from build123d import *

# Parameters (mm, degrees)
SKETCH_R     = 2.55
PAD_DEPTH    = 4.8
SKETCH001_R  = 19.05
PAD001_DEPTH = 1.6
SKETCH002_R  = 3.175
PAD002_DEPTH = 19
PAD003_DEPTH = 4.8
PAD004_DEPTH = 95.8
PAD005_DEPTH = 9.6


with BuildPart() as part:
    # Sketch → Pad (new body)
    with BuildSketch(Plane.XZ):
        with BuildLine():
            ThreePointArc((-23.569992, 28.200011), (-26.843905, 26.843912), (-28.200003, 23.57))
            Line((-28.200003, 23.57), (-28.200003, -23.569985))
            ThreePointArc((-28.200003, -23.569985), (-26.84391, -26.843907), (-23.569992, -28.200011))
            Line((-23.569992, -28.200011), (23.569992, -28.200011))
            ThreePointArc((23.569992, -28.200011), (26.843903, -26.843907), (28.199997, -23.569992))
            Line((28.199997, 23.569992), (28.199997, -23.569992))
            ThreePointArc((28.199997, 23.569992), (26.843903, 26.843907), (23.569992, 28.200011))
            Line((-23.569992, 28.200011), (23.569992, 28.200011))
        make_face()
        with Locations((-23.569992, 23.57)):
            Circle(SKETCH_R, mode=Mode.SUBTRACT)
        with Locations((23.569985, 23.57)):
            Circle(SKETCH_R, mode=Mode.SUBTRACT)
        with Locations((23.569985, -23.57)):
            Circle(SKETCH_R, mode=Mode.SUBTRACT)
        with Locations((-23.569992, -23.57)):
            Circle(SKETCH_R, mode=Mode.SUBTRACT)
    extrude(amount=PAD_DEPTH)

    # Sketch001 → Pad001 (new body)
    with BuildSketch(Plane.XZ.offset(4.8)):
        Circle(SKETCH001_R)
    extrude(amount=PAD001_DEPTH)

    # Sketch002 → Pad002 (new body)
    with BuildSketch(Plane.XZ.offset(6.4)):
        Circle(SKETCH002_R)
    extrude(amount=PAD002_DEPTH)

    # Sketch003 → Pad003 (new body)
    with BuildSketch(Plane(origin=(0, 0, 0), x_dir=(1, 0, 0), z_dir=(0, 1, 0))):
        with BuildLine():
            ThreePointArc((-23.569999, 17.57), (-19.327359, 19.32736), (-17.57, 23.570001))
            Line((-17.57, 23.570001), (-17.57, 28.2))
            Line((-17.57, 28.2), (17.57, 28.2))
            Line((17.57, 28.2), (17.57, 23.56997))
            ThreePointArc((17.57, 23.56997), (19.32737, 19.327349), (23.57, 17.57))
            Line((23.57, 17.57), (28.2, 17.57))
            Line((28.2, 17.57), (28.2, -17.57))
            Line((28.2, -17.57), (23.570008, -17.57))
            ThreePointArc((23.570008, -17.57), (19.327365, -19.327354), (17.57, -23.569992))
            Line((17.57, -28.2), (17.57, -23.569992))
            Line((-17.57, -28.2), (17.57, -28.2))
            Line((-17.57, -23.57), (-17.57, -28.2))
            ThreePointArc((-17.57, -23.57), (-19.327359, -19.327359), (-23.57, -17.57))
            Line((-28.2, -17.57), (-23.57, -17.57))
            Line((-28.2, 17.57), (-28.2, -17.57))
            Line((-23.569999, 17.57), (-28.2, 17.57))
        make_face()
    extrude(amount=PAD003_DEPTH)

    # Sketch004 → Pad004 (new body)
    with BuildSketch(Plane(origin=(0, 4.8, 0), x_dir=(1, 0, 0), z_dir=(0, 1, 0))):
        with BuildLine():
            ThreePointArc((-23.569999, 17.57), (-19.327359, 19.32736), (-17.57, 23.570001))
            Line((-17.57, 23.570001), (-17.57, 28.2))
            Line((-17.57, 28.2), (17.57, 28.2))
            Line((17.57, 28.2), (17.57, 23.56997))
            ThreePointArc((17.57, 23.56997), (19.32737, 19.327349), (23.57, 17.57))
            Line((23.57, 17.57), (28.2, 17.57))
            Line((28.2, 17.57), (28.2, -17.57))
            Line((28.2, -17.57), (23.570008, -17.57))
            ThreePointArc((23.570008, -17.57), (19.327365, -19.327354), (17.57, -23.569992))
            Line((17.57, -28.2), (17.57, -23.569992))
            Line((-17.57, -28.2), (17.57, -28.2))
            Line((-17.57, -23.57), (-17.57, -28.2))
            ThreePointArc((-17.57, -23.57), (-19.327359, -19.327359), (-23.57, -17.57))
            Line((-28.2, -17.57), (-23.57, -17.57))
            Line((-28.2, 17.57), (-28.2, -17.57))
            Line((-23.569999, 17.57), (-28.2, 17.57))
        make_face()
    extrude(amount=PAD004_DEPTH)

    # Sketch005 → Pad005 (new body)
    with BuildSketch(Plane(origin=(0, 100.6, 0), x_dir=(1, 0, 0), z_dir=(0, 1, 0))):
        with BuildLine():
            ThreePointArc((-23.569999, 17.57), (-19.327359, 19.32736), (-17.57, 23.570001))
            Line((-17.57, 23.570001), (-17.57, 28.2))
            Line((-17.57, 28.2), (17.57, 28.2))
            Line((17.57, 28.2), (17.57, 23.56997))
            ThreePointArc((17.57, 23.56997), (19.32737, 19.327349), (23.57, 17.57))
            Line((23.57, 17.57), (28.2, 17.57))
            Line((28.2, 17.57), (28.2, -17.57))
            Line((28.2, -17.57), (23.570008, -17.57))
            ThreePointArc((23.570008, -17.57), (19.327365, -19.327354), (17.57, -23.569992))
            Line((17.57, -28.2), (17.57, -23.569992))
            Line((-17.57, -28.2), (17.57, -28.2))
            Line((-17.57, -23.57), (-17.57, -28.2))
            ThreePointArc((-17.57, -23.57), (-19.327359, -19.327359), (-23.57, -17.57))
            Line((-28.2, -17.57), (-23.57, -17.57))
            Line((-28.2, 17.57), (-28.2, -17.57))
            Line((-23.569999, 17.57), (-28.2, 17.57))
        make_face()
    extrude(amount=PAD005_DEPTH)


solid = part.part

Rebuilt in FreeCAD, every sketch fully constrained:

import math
import FreeCAD as App
import Part
import Sketcher

V = App.Vector

doc = App.newDocument("Part")
params = doc.addObject("Spreadsheet::Sheet", "Params")
for row, (alias, value) in enumerate([
    ("sketch1_diameter", "5.1 mm"),
    ("pad1_length", "4.8 mm"),
    ("sketch2_diameter", "38.1 mm"),
    ("pad2_length", "1.6 mm"),
    ("sketch3_diameter", "6.35 mm"),
    ("pad3_length", "19 mm"),
    ("sketch4_radius", "6.000001 mm"),
    ("sketch4_width", "4.630001 mm"),
    ("sketch4_width2", "35.14 mm"),
    ("pad4_length", "4.8 mm"),
    ("sketch5_radius", "6.000001 mm"),
    ("sketch5_width", "4.630001 mm"),
    ("sketch5_width2", "35.14 mm"),
    ("pad5_length", "95.8 mm"),
    ("sketch6_radius", "6.000001 mm"),
    ("sketch6_width", "4.630001 mm"),
    ("sketch6_width2", "35.14 mm"),
    ("pad6_length", "9.6 mm"),
], start=1):
    params.set(f"A{row}", alias)
    params.set(f"B{row}", "=" + value)
    params.setAlias(f"B{row}", alias)

body = doc.addObject("PartDesign::Body", "Body")

sketch1 = body.newObject("Sketcher::SketchObject", "Sketch")
sketch1.AttachmentSupport = (doc.getObject("XZ_Plane"), [""])
sketch1.MapMode = "FlatFace"
sketch1.addGeometry([
    Part.ArcOfCircle(Part.Circle(V(-23.6, 23.6, 0), V(0, 0, 1), 4.6), math.radians(90), math.radians(180)),
    Part.LineSegment(V(-28.2, 23.6, 0), V(-28.2, -23.6, 0)),
    Part.ArcOfCircle(Part.Circle(V(-23.6, -23.6, 0), V(0, 0, 1), 4.6), math.radians(180), math.radians(270)),
    Part.LineSegment(V(-23.6, -28.2, 0), V(23.6, -28.2, 0)),
    Part.ArcOfCircle(Part.Circle(V(23.6, -23.6, 0), V(0, 0, 1), 4.6), math.radians(-90), math.radians(0)),
    Part.LineSegment(V(28.2, -23.6, 0), V(28.2, 23.6, 0)),
    Part.ArcOfCircle(Part.Circle(V(23.6, 23.6, 0), V(0, 0, 1), 4.6), math.radians(0), math.radians(90)),
    Part.LineSegment(V(23.6, 28.2, 0), V(-23.6, 28.2, 0)),
    Part.Circle(V(-23.6, -23.6, 0), V(0, 0, 1), 2.5),
    Part.Circle(V(23.6, -23.6, 0), V(0, 0, 1), 2.5),
    Part.Circle(V(-23.6, 23.6, 0), V(0, 0, 1), 2.5),
    Part.Circle(V(23.6, 23.6, 0), V(0, 0, 1), 2.5),
], False)
sketch1.addConstraint([
    Sketcher.Constraint("Tangent", 0, 2, 1, 1),
    Sketcher.Constraint("Coincident", 1, 2, 2, 1),
    Sketcher.Constraint("Tangent", 2, 2, 3, 1),
    Sketcher.Constraint("Tangent", 3, 2, 4, 1),
    Sketcher.Constraint("Tangent", 4, 2, 5, 1),
    Sketcher.Constraint("Tangent", 5, 2, 6, 1),
    Sketcher.Constraint("Tangent", 6, 2, 7, 1),
    Sketcher.Constraint("Tangent", 7, 2, 0, 1),
    Sketcher.Constraint("Vertical", 1),
    Sketcher.Constraint("Horizontal", 3),
    Sketcher.Constraint("Vertical", 5),
    Sketcher.Constraint("Horizontal", 7),
    Sketcher.Constraint("Coincident", 8, 3, 2, 3),
    Sketcher.Constraint("Coincident", 9, 3, 4, 3),
    Sketcher.Constraint("Coincident", 10, 3, 0, 3),
    Sketcher.Constraint("Coincident", 11, 3, 6, 3),
    Sketcher.Constraint("Equal", 0, 2),
    Sketcher.Constraint("Equal", 2, 4),
    Sketcher.Constraint("Equal", 4, 6),
    Sketcher.Constraint("Equal", 8, 9),
    Sketcher.Constraint("Equal", 9, 10),
    Sketcher.Constraint("Equal", 10, 11),
    Sketcher.Constraint("Symmetric", 0, 3, 4, 3, -1, 1),
    Sketcher.Constraint("Equal", 7, 1),
    Sketcher.Constraint("Equal", 1, 5),
    Sketcher.Constraint("Diameter", 8, 5.1),
    Sketcher.Constraint("DistanceY", -1, 1, 0, 3, 23.570001),
    Sketcher.Constraint("Radius", 0, 4.63001),
])
sketch1.setExpression("Constraints[25]", "Params.sketch1_diameter")
pad1 = body.newObject("PartDesign::Pad", "Pad")
pad1.Profile = sketch1
pad1.setExpression("Length", "Params.pad1_length")

sketch2 = body.newObject("Sketcher::SketchObject", "Sketch001")
sketch2.AttachmentSupport = (doc.getObject("XZ_Plane"), [""])
sketch2.MapMode = "FlatFace"
sketch2.AttachmentOffset = App.Placement(V(0, 0, 4.8), App.Rotation())
sketch2.addGeometry(Part.Circle(V(0, 0, 0), V(0, 0, 1), 19), False)
sketch2.addConstraint([
    Sketcher.Constraint("Coincident", 0, 3, -1, 1),
    Sketcher.Constraint("Diameter", 0, 38.1),
])
sketch2.setExpression("Constraints[1]", "Params.sketch2_diameter")
pad2 = body.newObject("PartDesign::Pad", "Pad001")
pad2.Profile = sketch2
pad2.setExpression("Length", "Params.pad2_length")

sketch3 = body.newObject("Sketcher::SketchObject", "Sketch002")
sketch3.AttachmentSupport = (doc.getObject("XZ_Plane"), [""])
sketch3.MapMode = "FlatFace"
sketch3.AttachmentOffset = App.Placement(V(0, 0, 6.4), App.Rotation())
sketch3.addGeometry(Part.Circle(V(0, 0, 0), V(0, 0, 1), 3.2), False)
sketch3.addConstraint([
    Sketcher.Constraint("Coincident", 0, 3, -1, 1),
    Sketcher.Constraint("Diameter", 0, 6.35),
])
sketch3.setExpression("Constraints[1]", "Params.sketch3_diameter")
pad3 = body.newObject("PartDesign::Pad", "Pad002")
pad3.Profile = sketch3
pad3.setExpression("Length", "Params.pad3_length")

sketch4 = body.newObject("Sketcher::SketchObject", "Sketch003")
sketch4.AttachmentSupport = (doc.getObject("XZ_Plane"), [""])
sketch4.MapMode = "FlatFace"
sketch4.addGeometry([
    Part.ArcOfCircle(Part.Circle(V(-23.6, -23.6, 0), V(0, 0, 1), 6), math.radians(0), math.radians(90)),
    Part.LineSegment(V(-23.6, -17.6, 0), V(-28.2, -17.6, 0)),
    Part.LineSegment(V(-28.2, -17.6, 0), V(-28.2, 17.6, 0)),
    Part.LineSegment(V(-28.2, 17.6, 0), V(-23.6, 17.6, 0)),
    Part.ArcOfCircle(Part.Circle(V(-23.6, 23.6, 0), V(0, 0, 1), 6), math.radians(-90), math.radians(0)),
    Part.LineSegment(V(-17.6, 23.6, 0), V(-17.6, 28.2, 0)),
    Part.LineSegment(V(-17.6, 28.2, 0), V(17.6, 28.2, 0)),
    Part.LineSegment(V(17.6, 28.2, 0), V(17.6, 23.6, 0)),
    Part.ArcOfCircle(Part.Circle(V(23.6, 23.6, 0), V(0, 0, 1), 6), math.radians(-180), math.radians(-90)),
    Part.LineSegment(V(23.6, 17.6, 0), V(28.2, 17.6, 0)),
    Part.LineSegment(V(28.2, 17.6, 0), V(28.2, -17.6, 0)),
    Part.LineSegment(V(28.2, -17.6, 0), V(23.6, -17.6, 0)),
    Part.ArcOfCircle(Part.Circle(V(23.6, -23.6, 0), V(0, 0, 1), 6), math.radians(90), math.radians(180)),
    Part.LineSegment(V(17.6, -23.6, 0), V(17.6, -28.2, 0)),
    Part.LineSegment(V(17.6, -28.2, 0), V(-17.6, -28.2, 0)),
    Part.LineSegment(V(-17.6, -28.2, 0), V(-17.6, -23.6, 0)),
], False)
sketch4.addConstraint([
    Sketcher.Constraint("Tangent", 0, 2, 1, 1),
    Sketcher.Constraint("Coincident", 1, 2, 2, 1),
    Sketcher.Constraint("Coincident", 2, 2, 3, 1),
    Sketcher.Constraint("Tangent", 3, 2, 4, 1),
    Sketcher.Constraint("Tangent", 4, 2, 5, 1),
    Sketcher.Constraint("Coincident", 5, 2, 6, 1),
    Sketcher.Constraint("Coincident", 6, 2, 7, 1),
    Sketcher.Constraint("Tangent", 7, 2, 8, 1),
    Sketcher.Constraint("Tangent", 8, 2, 9, 1),
    Sketcher.Constraint("Coincident", 9, 2, 10, 1),
    Sketcher.Constraint("Coincident", 10, 2, 11, 1),
    Sketcher.Constraint("Tangent", 11, 2, 12, 1),
    Sketcher.Constraint("Coincident", 12, 2, 13, 1),
    Sketcher.Constraint("Coincident", 13, 2, 14, 1),
    Sketcher.Constraint("Coincident", 14, 2, 15, 1),
    Sketcher.Constraint("Tangent", 15, 2, 0, 1),
    Sketcher.Constraint("Horizontal", 1),
    Sketcher.Constraint("Vertical", 2),
    Sketcher.Constraint("Horizontal", 3),
    Sketcher.Constraint("Vertical", 5),
    Sketcher.Constraint("Horizontal", 6),
    Sketcher.Constraint("Vertical", 7),
    Sketcher.Constraint("Horizontal", 9),
    Sketcher.Constraint("Vertical", 10),
    Sketcher.Constraint("Horizontal", 11),
    Sketcher.Constraint("Vertical", 13),
    Sketcher.Constraint("Horizontal", 14),
    Sketcher.Constraint("Vertical", 15),
    Sketcher.Constraint("Equal", 0, 4),
    Sketcher.Constraint("Equal", 4, 8),
    Sketcher.Constraint("Equal", 8, 12),
    Sketcher.Constraint("Symmetric", 0, 3, 8, 3, -1, 1),
    Sketcher.Constraint("Symmetric", 4, 3, 12, 3, -1, 1),
    Sketcher.Constraint("Symmetric", 4, 3, 8, 3, -2),
    Sketcher.Constraint("Equal", 3, 11),
    Sketcher.Constraint("Equal", 14, 2),
    Sketcher.Constraint("Equal", 11, 5),
    Sketcher.Constraint("Equal", 5, 15),
    Sketcher.Constraint("Radius", 0, 6.000001),
    Sketcher.Constraint("DistanceX", 1, 2, 1, 1, 4.630001),
    Sketcher.Constraint("DistanceX", 6, 1, 6, 2, 35.14),
    Sketcher.Constraint("DistanceY", 13, 2, 13, 1, 4.63003),
])
sketch4.setExpression("Constraints[38]", "Params.sketch4_radius")
sketch4.setExpression("Constraints[39]", "Params.sketch4_width")
sketch4.setExpression("Constraints[40]", "Params.sketch4_width2")
pad4 = body.newObject("PartDesign::Pad", "Pad003")
pad4.Profile = sketch4
pad4.setExpression("Length", "Params.pad4_length")
pad4.Reversed = True

sketch5 = body.newObject("Sketcher::SketchObject", "Sketch004")
sketch5.AttachmentSupport = (doc.getObject("XZ_Plane"), [""])
sketch5.MapMode = "FlatFace"
sketch5.AttachmentOffset = App.Placement(V(0, 0, -4.8), App.Rotation())
sketch5.addGeometry([
    Part.ArcOfCircle(Part.Circle(V(-23.6, -23.6, 0), V(0, 0, 1), 6), math.radians(0), math.radians(90)),
    Part.LineSegment(V(-23.6, -17.6, 0), V(-28.2, -17.6, 0)),
    Part.LineSegment(V(-28.2, -17.6, 0), V(-28.2, 17.6, 0)),
    Part.LineSegment(V(-28.2, 17.6, 0), V(-23.6, 17.6, 0)),
    Part.ArcOfCircle(Part.Circle(V(-23.6, 23.6, 0), V(0, 0, 1), 6), math.radians(-90), math.radians(0)),
    Part.LineSegment(V(-17.6, 23.6, 0), V(-17.6, 28.2, 0)),
    Part.LineSegment(V(-17.6, 28.2, 0), V(17.6, 28.2, 0)),
    Part.LineSegment(V(17.6, 28.2, 0), V(17.6, 23.6, 0)),
    Part.ArcOfCircle(Part.Circle(V(23.6, 23.6, 0), V(0, 0, 1), 6), math.radians(-180), math.radians(-90)),
    Part.LineSegment(V(23.6, 17.6, 0), V(28.2, 17.6, 0)),
    Part.LineSegment(V(28.2, 17.6, 0), V(28.2, -17.6, 0)),
    Part.LineSegment(V(28.2, -17.6, 0), V(23.6, -17.6, 0)),
    Part.ArcOfCircle(Part.Circle(V(23.6, -23.6, 0), V(0, 0, 1), 6), math.radians(90), math.radians(180)),
    Part.LineSegment(V(17.6, -23.6, 0), V(17.6, -28.2, 0)),
    Part.LineSegment(V(17.6, -28.2, 0), V(-17.6, -28.2, 0)),
    Part.LineSegment(V(-17.6, -28.2, 0), V(-17.6, -23.6, 0)),
], False)
sketch5.addConstraint([
    Sketcher.Constraint("Tangent", 0, 2, 1, 1),
    Sketcher.Constraint("Coincident", 1, 2, 2, 1),
    Sketcher.Constraint("Coincident", 2, 2, 3, 1),
    Sketcher.Constraint("Tangent", 3, 2, 4, 1),
    Sketcher.Constraint("Tangent", 4, 2, 5, 1),
    Sketcher.Constraint("Coincident", 5, 2, 6, 1),
    Sketcher.Constraint("Coincident", 6, 2, 7, 1),
    Sketcher.Constraint("Tangent", 7, 2, 8, 1),
    Sketcher.Constraint("Tangent", 8, 2, 9, 1),
    Sketcher.Constraint("Coincident", 9, 2, 10, 1),
    Sketcher.Constraint("Coincident", 10, 2, 11, 1),
    Sketcher.Constraint("Tangent", 11, 2, 12, 1),
    Sketcher.Constraint("Coincident", 12, 2, 13, 1),
    Sketcher.Constraint("Coincident", 13, 2, 14, 1),
    Sketcher.Constraint("Coincident", 14, 2, 15, 1),
    Sketcher.Constraint("Tangent", 15, 2, 0, 1),
    Sketcher.Constraint("Horizontal", 1),
    Sketcher.Constraint("Vertical", 2),
    Sketcher.Constraint("Horizontal", 3),
    Sketcher.Constraint("Vertical", 5),
    Sketcher.Constraint("Horizontal", 6),
    Sketcher.Constraint("Vertical", 7),
    Sketcher.Constraint("Horizontal", 9),
    Sketcher.Constraint("Vertical", 10),
    Sketcher.Constraint("Horizontal", 11),
    Sketcher.Constraint("Vertical", 13),
    Sketcher.Constraint("Horizontal", 14),
    Sketcher.Constraint("Vertical", 15),
    Sketcher.Constraint("Equal", 0, 4),
    Sketcher.Constraint("Equal", 4, 8),
    Sketcher.Constraint("Equal", 8, 12),
    Sketcher.Constraint("Symmetric", 0, 3, 8, 3, -1, 1),
    Sketcher.Constraint("Symmetric", 4, 3, 12, 3, -1, 1),
    Sketcher.Constraint("Symmetric", 4, 3, 8, 3, -2),
    Sketcher.Constraint("Equal", 3, 11),
    Sketcher.Constraint("Equal", 14, 2),
    Sketcher.Constraint("Equal", 11, 5),
    Sketcher.Constraint("Equal", 5, 15),
    Sketcher.Constraint("Radius", 0, 6.000001),
    Sketcher.Constraint("DistanceX", 1, 2, 1, 1, 4.630001),
    Sketcher.Constraint("DistanceX", 6, 1, 6, 2, 35.14),
    Sketcher.Constraint("DistanceY", 13, 2, 13, 1, 4.63003),
])
sketch5.setExpression("Constraints[38]", "Params.sketch5_radius")
sketch5.setExpression("Constraints[39]", "Params.sketch5_width")
sketch5.setExpression("Constraints[40]", "Params.sketch5_width2")
pad5 = body.newObject("PartDesign::Pad", "Pad004")
pad5.Profile = sketch5
pad5.setExpression("Length", "Params.pad5_length")
pad5.Reversed = True

sketch6 = body.newObject("Sketcher::SketchObject", "Sketch005")
sketch6.AttachmentSupport = (doc.getObject("XZ_Plane"), [""])
sketch6.MapMode = "FlatFace"
sketch6.AttachmentOffset = App.Placement(V(0, 0, -100.6), App.Rotation())
sketch6.addGeometry([
    Part.ArcOfCircle(Part.Circle(V(-23.6, -23.6, 0), V(0, 0, 1), 6), math.radians(0), math.radians(90)),
    Part.LineSegment(V(-23.6, -17.6, 0), V(-28.2, -17.6, 0)),
    Part.LineSegment(V(-28.2, -17.6, 0), V(-28.2, 17.6, 0)),
    Part.LineSegment(V(-28.2, 17.6, 0), V(-23.6, 17.6, 0)),
    Part.ArcOfCircle(Part.Circle(V(-23.6, 23.6, 0), V(0, 0, 1), 6), math.radians(-90), math.radians(0)),
    Part.LineSegment(V(-17.6, 23.6, 0), V(-17.6, 28.2, 0)),
    Part.LineSegment(V(-17.6, 28.2, 0), V(17.6, 28.2, 0)),
    Part.LineSegment(V(17.6, 28.2, 0), V(17.6, 23.6, 0)),
    Part.ArcOfCircle(Part.Circle(V(23.6, 23.6, 0), V(0, 0, 1), 6), math.radians(-180), math.radians(-90)),
    Part.LineSegment(V(23.6, 17.6, 0), V(28.2, 17.6, 0)),
    Part.LineSegment(V(28.2, 17.6, 0), V(28.2, -17.6, 0)),
    Part.LineSegment(V(28.2, -17.6, 0), V(23.6, -17.6, 0)),
    Part.ArcOfCircle(Part.Circle(V(23.6, -23.6, 0), V(0, 0, 1), 6), math.radians(90), math.radians(180)),
    Part.LineSegment(V(17.6, -23.6, 0), V(17.6, -28.2, 0)),
    Part.LineSegment(V(17.6, -28.2, 0), V(-17.6, -28.2, 0)),
    Part.LineSegment(V(-17.6, -28.2, 0), V(-17.6, -23.6, 0)),
], False)
sketch6.addConstraint([
    Sketcher.Constraint("Tangent", 0, 2, 1, 1),
    Sketcher.Constraint("Coincident", 1, 2, 2, 1),
    Sketcher.Constraint("Coincident", 2, 2, 3, 1),
    Sketcher.Constraint("Tangent", 3, 2, 4, 1),
    Sketcher.Constraint("Tangent", 4, 2, 5, 1),
    Sketcher.Constraint("Coincident", 5, 2, 6, 1),
    Sketcher.Constraint("Coincident", 6, 2, 7, 1),
    Sketcher.Constraint("Tangent", 7, 2, 8, 1),
    Sketcher.Constraint("Tangent", 8, 2, 9, 1),
    Sketcher.Constraint("Coincident", 9, 2, 10, 1),
    Sketcher.Constraint("Coincident", 10, 2, 11, 1),
    Sketcher.Constraint("Tangent", 11, 2, 12, 1),
    Sketcher.Constraint("Coincident", 12, 2, 13, 1),
    Sketcher.Constraint("Coincident", 13, 2, 14, 1),
    Sketcher.Constraint("Coincident", 14, 2, 15, 1),
    Sketcher.Constraint("Tangent", 15, 2, 0, 1),
    Sketcher.Constraint("Horizontal", 1),
    Sketcher.Constraint("Vertical", 2),
    Sketcher.Constraint("Horizontal", 3),
    Sketcher.Constraint("Vertical", 5),
    Sketcher.Constraint("Horizontal", 6),
    Sketcher.Constraint("Vertical", 7),
    Sketcher.Constraint("Horizontal", 9),
    Sketcher.Constraint("Vertical", 10),
    Sketcher.Constraint("Horizontal", 11),
    Sketcher.Constraint("Vertical", 13),
    Sketcher.Constraint("Horizontal", 14),
    Sketcher.Constraint("Vertical", 15),
    Sketcher.Constraint("Equal", 0, 4),
    Sketcher.Constraint("Equal", 4, 8),
    Sketcher.Constraint("Equal", 8, 12),
    Sketcher.Constraint("Symmetric", 0, 3, 8, 3, -1, 1),
    Sketcher.Constraint("Symmetric", 4, 3, 12, 3, -1, 1),
    Sketcher.Constraint("Symmetric", 4, 3, 8, 3, -2),
    Sketcher.Constraint("Equal", 3, 11),
    Sketcher.Constraint("Equal", 14, 2),
    Sketcher.Constraint("Equal", 11, 5),
    Sketcher.Constraint("Equal", 5, 15),
    Sketcher.Constraint("Radius", 0, 6.000001),
    Sketcher.Constraint("DistanceX", 1, 2, 1, 1, 4.630001),
    Sketcher.Constraint("DistanceX", 6, 1, 6, 2, 35.14),
    Sketcher.Constraint("DistanceY", 13, 2, 13, 1, 4.63003),
])
sketch6.setExpression("Constraints[38]", "Params.sketch6_radius")
sketch6.setExpression("Constraints[39]", "Params.sketch6_width")
sketch6.setExpression("Constraints[40]", "Params.sketch6_width2")
pad6 = body.newObject("PartDesign::Pad", "Pad005")
pad6.Profile = sketch6
pad6.setExpression("Length", "Params.pad6_length")
pad6.Reversed = True

doc.recompute()
